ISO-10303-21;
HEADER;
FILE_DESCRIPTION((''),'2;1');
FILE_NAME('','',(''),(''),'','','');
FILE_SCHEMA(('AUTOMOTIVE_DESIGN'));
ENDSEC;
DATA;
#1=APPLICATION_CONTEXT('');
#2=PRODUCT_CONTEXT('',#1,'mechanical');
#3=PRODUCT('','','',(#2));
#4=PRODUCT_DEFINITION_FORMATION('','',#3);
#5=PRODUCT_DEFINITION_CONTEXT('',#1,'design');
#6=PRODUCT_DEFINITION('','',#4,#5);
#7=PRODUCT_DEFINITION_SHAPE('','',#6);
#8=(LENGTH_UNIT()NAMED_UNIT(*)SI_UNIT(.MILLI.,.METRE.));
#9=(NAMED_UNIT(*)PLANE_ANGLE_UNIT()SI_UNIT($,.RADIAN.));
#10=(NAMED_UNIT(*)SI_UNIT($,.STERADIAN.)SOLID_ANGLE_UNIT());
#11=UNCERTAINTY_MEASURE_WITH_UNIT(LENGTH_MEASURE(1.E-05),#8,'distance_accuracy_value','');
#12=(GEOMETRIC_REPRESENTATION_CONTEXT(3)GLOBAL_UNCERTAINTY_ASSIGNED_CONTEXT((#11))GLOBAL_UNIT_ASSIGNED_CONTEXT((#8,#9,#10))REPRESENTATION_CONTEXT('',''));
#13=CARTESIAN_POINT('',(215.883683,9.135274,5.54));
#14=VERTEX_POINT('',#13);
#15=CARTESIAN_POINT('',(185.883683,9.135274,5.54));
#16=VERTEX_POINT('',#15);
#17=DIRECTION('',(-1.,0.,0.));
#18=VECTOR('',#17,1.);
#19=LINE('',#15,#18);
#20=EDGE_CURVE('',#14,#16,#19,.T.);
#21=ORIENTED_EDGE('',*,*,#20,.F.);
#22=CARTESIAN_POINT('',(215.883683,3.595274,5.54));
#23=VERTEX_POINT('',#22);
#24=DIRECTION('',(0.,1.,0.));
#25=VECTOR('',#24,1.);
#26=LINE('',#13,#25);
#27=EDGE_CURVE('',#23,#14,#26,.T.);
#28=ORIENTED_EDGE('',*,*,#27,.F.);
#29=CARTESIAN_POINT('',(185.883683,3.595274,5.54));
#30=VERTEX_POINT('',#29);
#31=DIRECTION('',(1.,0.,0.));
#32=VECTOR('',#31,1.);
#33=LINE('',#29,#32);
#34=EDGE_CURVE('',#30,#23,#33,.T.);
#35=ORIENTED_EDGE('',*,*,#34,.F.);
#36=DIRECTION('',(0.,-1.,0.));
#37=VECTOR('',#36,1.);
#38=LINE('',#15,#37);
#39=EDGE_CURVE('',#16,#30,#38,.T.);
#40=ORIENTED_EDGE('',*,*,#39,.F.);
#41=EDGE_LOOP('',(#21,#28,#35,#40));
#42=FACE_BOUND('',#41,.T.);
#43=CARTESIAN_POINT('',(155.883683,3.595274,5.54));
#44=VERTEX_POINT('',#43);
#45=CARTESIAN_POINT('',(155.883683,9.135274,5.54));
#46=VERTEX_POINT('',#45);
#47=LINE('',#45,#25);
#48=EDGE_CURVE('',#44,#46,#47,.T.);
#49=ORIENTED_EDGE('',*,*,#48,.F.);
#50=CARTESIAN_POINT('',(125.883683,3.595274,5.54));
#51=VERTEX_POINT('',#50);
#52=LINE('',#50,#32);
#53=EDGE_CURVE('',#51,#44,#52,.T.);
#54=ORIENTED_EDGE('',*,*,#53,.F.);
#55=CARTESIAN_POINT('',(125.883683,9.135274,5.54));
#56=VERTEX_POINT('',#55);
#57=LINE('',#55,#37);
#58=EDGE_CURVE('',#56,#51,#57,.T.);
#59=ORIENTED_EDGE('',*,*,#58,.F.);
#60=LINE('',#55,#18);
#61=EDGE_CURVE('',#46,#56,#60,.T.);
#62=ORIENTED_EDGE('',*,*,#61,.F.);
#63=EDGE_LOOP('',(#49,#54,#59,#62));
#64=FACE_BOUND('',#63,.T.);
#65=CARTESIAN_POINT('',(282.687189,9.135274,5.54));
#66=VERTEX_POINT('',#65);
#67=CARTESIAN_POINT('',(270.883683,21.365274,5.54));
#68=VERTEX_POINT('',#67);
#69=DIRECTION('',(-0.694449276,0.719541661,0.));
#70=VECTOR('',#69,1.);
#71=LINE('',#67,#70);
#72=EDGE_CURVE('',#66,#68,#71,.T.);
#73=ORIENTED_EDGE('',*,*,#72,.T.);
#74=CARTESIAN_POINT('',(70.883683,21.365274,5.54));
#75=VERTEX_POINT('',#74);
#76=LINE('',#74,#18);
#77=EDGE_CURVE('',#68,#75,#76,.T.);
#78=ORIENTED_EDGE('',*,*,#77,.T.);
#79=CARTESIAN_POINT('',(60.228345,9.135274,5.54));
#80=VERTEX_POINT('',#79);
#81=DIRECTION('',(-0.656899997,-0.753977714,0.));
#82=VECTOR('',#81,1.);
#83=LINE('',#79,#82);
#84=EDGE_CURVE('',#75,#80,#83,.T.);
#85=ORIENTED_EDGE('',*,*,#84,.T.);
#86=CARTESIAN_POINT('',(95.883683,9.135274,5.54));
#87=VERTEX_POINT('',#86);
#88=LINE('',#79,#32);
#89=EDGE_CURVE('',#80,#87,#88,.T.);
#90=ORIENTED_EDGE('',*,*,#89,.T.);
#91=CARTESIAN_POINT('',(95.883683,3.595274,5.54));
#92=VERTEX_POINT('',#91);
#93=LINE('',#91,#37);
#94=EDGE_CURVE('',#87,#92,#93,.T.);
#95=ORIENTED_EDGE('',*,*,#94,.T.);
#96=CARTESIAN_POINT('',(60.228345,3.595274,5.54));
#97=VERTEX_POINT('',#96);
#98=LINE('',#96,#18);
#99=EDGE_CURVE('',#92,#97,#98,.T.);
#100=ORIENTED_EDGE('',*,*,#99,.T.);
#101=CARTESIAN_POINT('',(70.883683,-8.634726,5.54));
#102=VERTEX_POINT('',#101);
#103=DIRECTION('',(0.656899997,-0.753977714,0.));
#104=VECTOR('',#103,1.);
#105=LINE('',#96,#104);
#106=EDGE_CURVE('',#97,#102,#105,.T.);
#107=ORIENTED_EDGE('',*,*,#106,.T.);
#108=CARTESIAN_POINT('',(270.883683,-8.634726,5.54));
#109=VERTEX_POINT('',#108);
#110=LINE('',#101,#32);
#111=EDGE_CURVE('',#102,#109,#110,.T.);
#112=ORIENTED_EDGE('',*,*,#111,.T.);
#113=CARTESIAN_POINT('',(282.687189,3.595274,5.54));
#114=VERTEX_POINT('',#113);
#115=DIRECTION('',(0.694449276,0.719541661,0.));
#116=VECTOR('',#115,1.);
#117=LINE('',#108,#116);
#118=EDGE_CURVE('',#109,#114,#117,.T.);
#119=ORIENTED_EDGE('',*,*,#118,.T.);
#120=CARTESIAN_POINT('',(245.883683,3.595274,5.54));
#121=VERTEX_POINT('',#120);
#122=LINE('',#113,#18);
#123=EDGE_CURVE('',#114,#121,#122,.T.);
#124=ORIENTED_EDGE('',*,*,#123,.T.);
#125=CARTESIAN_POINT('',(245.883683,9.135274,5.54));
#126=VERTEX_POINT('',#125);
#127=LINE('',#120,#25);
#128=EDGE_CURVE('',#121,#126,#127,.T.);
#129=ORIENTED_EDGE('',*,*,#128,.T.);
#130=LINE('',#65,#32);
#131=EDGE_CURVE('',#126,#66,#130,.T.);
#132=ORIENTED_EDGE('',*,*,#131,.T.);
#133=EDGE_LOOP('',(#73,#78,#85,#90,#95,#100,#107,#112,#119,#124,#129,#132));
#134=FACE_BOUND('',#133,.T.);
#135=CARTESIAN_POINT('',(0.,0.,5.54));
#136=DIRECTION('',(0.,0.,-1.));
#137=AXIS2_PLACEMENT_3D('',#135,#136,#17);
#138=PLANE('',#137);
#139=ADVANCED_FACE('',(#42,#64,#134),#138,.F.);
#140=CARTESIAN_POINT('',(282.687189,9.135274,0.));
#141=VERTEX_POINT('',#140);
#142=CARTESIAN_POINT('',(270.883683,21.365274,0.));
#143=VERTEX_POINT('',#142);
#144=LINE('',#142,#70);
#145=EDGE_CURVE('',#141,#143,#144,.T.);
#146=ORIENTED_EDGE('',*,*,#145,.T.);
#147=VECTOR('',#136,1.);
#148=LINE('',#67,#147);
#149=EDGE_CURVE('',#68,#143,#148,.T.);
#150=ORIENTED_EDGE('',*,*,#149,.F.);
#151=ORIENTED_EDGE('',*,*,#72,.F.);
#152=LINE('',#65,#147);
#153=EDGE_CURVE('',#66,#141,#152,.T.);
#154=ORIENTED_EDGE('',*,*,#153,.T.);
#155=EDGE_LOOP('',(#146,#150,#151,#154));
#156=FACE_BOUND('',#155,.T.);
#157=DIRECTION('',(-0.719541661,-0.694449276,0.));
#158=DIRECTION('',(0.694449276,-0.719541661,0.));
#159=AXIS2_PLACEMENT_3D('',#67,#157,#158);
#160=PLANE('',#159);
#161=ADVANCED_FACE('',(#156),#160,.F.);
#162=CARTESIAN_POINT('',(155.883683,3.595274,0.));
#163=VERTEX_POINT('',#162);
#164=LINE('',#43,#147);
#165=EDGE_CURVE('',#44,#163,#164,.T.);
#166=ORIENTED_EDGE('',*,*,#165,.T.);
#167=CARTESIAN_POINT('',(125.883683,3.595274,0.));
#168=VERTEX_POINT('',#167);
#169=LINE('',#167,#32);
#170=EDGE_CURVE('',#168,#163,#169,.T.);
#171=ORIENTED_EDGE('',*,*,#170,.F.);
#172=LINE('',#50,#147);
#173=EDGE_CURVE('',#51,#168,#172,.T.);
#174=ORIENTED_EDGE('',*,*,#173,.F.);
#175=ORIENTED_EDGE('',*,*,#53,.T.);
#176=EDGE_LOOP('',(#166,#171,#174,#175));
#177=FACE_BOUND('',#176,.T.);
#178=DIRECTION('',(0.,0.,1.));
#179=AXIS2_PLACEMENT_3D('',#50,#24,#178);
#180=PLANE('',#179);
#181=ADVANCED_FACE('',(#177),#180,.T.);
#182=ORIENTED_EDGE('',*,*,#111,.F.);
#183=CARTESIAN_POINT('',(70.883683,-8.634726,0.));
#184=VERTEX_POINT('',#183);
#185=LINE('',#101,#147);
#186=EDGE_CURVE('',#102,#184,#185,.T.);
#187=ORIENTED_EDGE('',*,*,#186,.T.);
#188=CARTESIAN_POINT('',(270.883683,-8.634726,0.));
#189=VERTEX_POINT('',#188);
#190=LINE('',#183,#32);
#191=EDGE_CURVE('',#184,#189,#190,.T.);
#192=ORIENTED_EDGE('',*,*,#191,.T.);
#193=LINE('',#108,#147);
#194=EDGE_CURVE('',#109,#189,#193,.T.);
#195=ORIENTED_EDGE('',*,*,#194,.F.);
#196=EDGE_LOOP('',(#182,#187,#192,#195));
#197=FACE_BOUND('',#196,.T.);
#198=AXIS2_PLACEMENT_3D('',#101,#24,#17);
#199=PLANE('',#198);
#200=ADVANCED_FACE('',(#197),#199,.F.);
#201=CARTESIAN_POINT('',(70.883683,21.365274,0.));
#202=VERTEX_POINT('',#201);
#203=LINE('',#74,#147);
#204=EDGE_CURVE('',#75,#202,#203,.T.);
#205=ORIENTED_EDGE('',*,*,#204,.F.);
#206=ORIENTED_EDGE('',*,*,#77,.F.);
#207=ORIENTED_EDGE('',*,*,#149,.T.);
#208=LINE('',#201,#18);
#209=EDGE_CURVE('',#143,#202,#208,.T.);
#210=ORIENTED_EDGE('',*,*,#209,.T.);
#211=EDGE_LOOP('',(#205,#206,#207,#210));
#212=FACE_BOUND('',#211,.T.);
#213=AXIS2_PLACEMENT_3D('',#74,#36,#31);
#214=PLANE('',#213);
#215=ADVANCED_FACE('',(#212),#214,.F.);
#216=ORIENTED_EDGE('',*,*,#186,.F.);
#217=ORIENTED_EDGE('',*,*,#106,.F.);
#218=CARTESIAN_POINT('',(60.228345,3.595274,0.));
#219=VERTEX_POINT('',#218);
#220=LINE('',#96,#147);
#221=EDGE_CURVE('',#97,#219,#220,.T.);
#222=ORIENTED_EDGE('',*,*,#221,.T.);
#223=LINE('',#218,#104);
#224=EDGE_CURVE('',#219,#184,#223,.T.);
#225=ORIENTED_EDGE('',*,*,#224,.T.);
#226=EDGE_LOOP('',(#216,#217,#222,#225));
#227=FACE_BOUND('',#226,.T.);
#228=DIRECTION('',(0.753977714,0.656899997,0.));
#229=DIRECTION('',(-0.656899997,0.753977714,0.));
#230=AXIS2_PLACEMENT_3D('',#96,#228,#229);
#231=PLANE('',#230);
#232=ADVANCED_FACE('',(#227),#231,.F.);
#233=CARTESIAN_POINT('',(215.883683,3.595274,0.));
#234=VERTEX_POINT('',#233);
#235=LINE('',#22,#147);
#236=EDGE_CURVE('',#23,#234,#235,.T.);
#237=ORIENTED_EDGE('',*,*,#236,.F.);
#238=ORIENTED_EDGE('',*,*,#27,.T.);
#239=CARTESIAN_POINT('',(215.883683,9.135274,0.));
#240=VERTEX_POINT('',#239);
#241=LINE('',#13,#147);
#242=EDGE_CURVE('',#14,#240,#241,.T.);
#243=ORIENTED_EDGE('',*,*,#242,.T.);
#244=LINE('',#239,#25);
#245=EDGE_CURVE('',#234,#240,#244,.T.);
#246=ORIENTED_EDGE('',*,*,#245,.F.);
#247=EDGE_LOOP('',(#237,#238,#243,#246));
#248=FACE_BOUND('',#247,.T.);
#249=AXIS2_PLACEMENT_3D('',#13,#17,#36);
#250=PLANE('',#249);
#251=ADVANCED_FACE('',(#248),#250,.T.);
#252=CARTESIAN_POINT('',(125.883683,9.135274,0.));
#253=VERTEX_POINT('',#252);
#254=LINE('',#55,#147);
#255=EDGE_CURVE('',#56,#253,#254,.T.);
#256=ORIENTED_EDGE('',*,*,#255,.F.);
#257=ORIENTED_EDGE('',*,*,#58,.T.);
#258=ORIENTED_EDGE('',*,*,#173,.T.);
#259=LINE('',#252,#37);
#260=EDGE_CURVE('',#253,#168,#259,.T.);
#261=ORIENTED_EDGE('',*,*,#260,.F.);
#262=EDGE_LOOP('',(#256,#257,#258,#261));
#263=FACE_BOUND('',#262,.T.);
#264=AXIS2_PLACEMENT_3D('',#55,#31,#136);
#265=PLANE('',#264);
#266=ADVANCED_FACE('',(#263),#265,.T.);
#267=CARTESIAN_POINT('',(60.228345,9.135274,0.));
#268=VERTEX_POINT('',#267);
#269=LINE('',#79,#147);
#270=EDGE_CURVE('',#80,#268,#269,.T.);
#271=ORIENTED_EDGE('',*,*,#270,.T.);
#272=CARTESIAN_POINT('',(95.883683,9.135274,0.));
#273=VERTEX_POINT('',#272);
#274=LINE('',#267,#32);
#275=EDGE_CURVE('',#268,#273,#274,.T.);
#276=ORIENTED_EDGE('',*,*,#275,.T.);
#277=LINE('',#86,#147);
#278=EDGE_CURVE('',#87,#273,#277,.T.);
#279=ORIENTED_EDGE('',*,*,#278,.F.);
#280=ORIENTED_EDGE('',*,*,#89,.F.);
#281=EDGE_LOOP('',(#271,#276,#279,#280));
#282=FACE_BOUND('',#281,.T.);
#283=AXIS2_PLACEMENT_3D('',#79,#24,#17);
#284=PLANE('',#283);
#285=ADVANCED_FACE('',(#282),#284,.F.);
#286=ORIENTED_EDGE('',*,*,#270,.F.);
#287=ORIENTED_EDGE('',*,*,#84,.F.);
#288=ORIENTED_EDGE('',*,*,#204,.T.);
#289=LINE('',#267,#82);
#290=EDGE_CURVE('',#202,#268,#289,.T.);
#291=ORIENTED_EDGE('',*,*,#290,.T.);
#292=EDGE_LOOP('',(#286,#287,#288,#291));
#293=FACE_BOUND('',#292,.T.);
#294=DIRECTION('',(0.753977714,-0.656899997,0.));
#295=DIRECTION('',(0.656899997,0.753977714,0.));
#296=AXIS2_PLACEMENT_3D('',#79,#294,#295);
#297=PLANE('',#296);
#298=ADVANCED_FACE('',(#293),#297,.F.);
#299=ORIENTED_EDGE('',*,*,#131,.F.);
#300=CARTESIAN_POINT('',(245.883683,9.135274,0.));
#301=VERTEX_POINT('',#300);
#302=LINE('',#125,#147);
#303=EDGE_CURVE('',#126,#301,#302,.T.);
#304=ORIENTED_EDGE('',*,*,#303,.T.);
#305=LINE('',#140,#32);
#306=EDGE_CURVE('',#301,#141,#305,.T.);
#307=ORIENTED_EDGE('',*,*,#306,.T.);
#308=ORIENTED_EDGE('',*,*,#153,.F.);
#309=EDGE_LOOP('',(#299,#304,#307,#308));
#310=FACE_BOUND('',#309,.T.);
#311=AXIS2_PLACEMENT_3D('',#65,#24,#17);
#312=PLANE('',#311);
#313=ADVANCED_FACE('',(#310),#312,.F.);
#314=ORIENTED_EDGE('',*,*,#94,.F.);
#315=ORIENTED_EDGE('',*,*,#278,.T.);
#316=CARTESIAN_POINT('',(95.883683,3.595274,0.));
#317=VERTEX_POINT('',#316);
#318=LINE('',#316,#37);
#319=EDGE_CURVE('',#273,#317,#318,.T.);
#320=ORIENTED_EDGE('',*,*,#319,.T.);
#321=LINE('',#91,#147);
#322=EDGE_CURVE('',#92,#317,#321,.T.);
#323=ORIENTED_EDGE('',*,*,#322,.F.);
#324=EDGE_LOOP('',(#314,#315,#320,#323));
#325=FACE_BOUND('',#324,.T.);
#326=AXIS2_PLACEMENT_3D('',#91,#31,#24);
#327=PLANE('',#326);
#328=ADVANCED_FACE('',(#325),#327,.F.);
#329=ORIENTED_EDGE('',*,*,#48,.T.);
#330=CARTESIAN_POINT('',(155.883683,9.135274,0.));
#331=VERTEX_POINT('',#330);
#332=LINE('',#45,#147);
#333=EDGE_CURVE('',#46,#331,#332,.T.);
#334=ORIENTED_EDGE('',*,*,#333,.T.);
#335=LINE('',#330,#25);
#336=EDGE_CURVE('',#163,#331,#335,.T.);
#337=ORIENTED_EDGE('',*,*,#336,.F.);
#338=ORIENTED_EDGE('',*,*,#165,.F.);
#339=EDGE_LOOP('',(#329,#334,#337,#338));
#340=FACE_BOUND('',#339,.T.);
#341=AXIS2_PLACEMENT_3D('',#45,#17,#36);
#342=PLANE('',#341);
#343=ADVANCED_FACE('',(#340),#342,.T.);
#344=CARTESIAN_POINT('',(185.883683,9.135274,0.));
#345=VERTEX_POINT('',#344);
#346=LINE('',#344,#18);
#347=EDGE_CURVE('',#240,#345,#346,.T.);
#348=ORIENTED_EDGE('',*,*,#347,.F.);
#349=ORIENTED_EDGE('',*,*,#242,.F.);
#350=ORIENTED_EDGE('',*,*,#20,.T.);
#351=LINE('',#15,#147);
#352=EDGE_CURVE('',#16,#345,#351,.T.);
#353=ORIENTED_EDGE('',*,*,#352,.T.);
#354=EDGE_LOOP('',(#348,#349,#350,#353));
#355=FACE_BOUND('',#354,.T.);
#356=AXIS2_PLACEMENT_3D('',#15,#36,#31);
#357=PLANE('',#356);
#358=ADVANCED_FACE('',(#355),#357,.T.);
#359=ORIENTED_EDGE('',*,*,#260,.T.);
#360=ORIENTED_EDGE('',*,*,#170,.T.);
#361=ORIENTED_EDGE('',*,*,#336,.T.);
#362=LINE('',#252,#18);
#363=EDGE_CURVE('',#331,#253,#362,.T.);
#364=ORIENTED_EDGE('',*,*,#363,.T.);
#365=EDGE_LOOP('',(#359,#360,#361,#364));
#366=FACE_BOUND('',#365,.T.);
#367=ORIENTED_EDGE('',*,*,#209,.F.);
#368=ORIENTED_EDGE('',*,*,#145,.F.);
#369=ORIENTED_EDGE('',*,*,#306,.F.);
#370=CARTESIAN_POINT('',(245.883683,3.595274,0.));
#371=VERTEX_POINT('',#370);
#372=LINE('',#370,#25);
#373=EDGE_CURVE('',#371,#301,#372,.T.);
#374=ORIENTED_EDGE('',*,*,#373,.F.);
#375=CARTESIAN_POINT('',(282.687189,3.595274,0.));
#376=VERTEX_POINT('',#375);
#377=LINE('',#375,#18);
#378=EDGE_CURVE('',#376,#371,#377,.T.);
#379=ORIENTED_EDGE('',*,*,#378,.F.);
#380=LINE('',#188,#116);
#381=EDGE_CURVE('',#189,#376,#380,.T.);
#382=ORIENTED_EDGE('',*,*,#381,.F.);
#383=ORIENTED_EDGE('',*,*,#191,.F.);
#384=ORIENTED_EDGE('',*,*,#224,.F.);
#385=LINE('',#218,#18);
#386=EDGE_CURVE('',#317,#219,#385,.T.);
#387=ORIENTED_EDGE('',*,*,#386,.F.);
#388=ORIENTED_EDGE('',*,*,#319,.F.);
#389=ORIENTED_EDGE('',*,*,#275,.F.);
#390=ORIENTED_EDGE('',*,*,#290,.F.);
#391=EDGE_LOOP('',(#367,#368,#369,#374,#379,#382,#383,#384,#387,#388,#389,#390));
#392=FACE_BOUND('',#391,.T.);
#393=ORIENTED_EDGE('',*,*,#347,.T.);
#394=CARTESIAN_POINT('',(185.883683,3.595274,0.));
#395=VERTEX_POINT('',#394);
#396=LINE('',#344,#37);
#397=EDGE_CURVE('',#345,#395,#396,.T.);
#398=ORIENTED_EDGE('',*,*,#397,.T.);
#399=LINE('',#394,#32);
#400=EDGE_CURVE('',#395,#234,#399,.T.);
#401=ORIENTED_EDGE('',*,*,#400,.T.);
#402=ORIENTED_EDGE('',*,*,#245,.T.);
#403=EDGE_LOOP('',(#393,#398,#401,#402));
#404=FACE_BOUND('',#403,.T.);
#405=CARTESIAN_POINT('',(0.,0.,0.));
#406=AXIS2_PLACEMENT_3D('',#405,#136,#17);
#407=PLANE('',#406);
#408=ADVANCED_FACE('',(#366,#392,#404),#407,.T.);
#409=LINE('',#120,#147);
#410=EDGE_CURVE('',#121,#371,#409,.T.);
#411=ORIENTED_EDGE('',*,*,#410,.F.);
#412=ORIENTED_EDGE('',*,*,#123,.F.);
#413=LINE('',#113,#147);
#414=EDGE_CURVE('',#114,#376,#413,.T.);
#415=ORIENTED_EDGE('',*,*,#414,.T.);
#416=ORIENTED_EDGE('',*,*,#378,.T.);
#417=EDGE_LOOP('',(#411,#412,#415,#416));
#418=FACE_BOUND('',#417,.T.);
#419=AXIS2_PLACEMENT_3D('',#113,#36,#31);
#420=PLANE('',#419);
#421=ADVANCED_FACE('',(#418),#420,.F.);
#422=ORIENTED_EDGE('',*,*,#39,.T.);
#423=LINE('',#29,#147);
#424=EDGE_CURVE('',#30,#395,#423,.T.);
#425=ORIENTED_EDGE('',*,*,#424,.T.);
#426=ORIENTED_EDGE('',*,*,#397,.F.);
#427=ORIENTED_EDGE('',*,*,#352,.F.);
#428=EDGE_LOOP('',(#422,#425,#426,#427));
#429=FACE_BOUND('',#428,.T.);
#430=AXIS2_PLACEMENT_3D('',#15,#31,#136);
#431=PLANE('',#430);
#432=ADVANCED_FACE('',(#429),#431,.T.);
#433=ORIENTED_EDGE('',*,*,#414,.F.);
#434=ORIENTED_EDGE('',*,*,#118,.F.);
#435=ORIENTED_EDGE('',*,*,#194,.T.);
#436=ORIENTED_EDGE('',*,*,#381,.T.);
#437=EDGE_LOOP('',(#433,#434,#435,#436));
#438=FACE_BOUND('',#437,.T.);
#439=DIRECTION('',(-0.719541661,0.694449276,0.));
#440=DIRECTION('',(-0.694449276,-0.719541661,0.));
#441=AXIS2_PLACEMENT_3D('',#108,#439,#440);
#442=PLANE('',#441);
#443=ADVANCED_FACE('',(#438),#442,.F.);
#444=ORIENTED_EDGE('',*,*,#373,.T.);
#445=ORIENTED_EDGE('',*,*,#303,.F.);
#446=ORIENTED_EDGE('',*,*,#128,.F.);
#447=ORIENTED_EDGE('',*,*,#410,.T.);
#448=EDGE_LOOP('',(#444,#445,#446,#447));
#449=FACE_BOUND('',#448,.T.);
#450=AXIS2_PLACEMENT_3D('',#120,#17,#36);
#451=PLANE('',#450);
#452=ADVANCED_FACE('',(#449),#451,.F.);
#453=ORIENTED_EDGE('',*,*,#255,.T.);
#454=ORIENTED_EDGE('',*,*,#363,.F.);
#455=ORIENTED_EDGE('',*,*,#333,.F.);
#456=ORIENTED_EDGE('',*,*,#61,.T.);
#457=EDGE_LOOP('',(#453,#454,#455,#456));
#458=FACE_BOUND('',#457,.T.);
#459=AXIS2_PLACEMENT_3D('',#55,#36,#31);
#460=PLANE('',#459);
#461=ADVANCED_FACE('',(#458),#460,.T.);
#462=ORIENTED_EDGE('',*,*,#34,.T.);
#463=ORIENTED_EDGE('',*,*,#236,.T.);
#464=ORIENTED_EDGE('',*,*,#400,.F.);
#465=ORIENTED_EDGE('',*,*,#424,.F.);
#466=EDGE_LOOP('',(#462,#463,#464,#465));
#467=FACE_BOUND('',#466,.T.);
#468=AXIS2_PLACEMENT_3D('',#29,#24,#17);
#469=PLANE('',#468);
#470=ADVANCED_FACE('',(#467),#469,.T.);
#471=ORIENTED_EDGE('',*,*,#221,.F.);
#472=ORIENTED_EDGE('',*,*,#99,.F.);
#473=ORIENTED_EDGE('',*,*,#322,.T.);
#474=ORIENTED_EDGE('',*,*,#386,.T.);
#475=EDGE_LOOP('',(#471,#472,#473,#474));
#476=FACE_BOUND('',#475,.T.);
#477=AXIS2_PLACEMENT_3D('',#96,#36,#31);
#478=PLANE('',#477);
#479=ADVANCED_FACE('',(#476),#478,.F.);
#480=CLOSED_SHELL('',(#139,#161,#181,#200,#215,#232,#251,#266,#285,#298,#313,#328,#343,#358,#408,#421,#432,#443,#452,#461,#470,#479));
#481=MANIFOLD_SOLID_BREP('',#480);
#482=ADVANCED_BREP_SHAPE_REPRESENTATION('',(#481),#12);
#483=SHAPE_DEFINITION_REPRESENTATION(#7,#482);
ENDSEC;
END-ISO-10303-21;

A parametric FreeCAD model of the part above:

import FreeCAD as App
import Part
import Sketcher

V = App.Vector
Q = App.Units.Quantity


def add_polygon(sketch, points):
    """Adds a closed chain of lines whose ends are joined by coincident constraints."""
    first, n = sketch.GeometryCount, len(points)
    for a, b in zip(points, points[1:] + points[:1]):
        sketch.addGeometry(Part.LineSegment(App.Vector(*a, 0), App.Vector(*b, 0)), False)
    for i in range(n):
        sketch.addConstraint(Sketcher.Constraint("Coincident", first + i, 2, first + (i + 1) % n, 1))

doc = App.newDocument("Part")
params = doc.addObject("Spreadsheet::Sheet", "Params")
for row, (alias, value) in enumerate([
    ("sketch1_width", "200 mm"),
    ("sketch1_width2", "30 mm"),
    ("sketch1_height", "5.54 mm"),
    ("pad1_length", "5.54 mm"),
], start=1):
    params.set(f"A{row}", alias)
    params.set(f"B{row}", "=" + value)
    params.setAlias(f"B{row}", alias)

body = doc.addObject("PartDesign::Body", "Body")

# Sketch on XY plane
sketch1 = body.newObject("Sketcher::SketchObject", "Sketch")
sketch1.AttachmentSupport = (doc.getObject("XY_Plane"), [""])
sketch1.MapMode = "FlatFace"
add_polygon(sketch1, [(271, 21), (71, 21), (60, 9), (96, 9), (96, 4), (60, 4), (71, -9), (271, -9), (283, 4), (246, 4), (246, 9), (283, 9)])  # lines 0-11
add_polygon(sketch1, [(186, 4), (186, 9), (216, 9), (216, 4)])  # lines 12-15
add_polygon(sketch1, [(126, 4), (126, 9), (156, 9), (156, 4)])  # lines 16-19
sketch1.addConstraint([
    Sketcher.Constraint("Horizontal", 0),
    Sketcher.Constraint("Horizontal", 2),
    Sketcher.Constraint("Vertical", 3),
    Sketcher.Constraint("Horizontal", 4),
    Sketcher.Constraint("Horizontal", 6),
    Sketcher.Constraint("Horizontal", 8),
    Sketcher.Constraint("Vertical", 9),
    Sketcher.Constraint("Horizontal", 10),
    Sketcher.Constraint("Vertical", 12),
    Sketcher.Constraint("Horizontal", 13),
    Sketcher.Constraint("Vertical", 14),
    Sketcher.Constraint("Horizontal", 15),
    Sketcher.Constraint("Vertical", 16),
    Sketcher.Constraint("Horizontal", 17),
    Sketcher.Constraint("Vertical", 18),
    Sketcher.Constraint("Horizontal", 19),
    Sketcher.Constraint("Horizontal", 4, 2, 7, 2),
    Sketcher.Constraint("Horizontal", 2, 2, 9, 2),
    Sketcher.Constraint("Horizontal", 10, 2, 12, 2),
    Sketcher.Constraint("Horizontal", 8, 2, 14, 2),
    Sketcher.Constraint("Horizontal", 13, 2, 16, 2),
    Sketcher.Constraint("Horizontal", 15, 2, 18, 2),
    Sketcher.Constraint("Vertical", 1, 2, 4, 2),
    Sketcher.Constraint("Vertical", 0, 2, 5, 2),
    Sketcher.Constraint("Vertical", 7, 2, 10, 2),
    Sketcher.Constraint("Vertical", 6, 2, 11, 2),
    Sketcher.Constraint("Equal", 15, 17),
    Sketcher.Constraint("Equal", 1, 5),
    Sketcher.Constraint("DistanceX", 0, 2, 0, 1, Q("200 mm")),
    Sketcher.Constraint("DistanceX", 13, 1, 13, 2, Q("30 mm")),
    Sketcher.Constraint("DistanceX", 0, 2, 2, 2, Q("25 mm")),
    Sketcher.Constraint("DistanceY", 5, 2, 0, 2, Q("30 mm")),
    Sketcher.Constraint("DistanceX", 8, 2, 6, 2, Q("25 mm")),
    Sketcher.Constraint("DistanceX", 12, 2, 9, 2, Q("60 mm")),
    Sketcher.Constraint("DistanceX", 2, 2, 16, 2, Q("30 mm")),
    Sketcher.Constraint("DistanceY", 3, 2, 3, 1, Q("5.54 mm")),
    Sketcher.Constraint("Distance", 1, Q("16.220639 mm")),
    Sketcher.Constraint("Distance", 7, Q("16.996931 mm")),
    Sketcher.Constraint("DistanceX", -1, 1, 7, 2, Q("282.687189 mm")),
    Sketcher.Constraint("DistanceY", -1, 1, 0, 2, Q("21.365274 mm")),
])
sketch1.setExpression("Constraints[48]", "Params.sketch1_width")
sketch1.setExpression("Constraints[49]", "Params.sketch1_width2")
sketch1.setExpression("Constraints[55]", "Params.sketch1_height")
pad1 = body.newObject("PartDesign::Pad", "Pad")
pad1.Profile = sketch1
pad1.setExpression("Length", "Params.pad1_length")

doc.recompute()
